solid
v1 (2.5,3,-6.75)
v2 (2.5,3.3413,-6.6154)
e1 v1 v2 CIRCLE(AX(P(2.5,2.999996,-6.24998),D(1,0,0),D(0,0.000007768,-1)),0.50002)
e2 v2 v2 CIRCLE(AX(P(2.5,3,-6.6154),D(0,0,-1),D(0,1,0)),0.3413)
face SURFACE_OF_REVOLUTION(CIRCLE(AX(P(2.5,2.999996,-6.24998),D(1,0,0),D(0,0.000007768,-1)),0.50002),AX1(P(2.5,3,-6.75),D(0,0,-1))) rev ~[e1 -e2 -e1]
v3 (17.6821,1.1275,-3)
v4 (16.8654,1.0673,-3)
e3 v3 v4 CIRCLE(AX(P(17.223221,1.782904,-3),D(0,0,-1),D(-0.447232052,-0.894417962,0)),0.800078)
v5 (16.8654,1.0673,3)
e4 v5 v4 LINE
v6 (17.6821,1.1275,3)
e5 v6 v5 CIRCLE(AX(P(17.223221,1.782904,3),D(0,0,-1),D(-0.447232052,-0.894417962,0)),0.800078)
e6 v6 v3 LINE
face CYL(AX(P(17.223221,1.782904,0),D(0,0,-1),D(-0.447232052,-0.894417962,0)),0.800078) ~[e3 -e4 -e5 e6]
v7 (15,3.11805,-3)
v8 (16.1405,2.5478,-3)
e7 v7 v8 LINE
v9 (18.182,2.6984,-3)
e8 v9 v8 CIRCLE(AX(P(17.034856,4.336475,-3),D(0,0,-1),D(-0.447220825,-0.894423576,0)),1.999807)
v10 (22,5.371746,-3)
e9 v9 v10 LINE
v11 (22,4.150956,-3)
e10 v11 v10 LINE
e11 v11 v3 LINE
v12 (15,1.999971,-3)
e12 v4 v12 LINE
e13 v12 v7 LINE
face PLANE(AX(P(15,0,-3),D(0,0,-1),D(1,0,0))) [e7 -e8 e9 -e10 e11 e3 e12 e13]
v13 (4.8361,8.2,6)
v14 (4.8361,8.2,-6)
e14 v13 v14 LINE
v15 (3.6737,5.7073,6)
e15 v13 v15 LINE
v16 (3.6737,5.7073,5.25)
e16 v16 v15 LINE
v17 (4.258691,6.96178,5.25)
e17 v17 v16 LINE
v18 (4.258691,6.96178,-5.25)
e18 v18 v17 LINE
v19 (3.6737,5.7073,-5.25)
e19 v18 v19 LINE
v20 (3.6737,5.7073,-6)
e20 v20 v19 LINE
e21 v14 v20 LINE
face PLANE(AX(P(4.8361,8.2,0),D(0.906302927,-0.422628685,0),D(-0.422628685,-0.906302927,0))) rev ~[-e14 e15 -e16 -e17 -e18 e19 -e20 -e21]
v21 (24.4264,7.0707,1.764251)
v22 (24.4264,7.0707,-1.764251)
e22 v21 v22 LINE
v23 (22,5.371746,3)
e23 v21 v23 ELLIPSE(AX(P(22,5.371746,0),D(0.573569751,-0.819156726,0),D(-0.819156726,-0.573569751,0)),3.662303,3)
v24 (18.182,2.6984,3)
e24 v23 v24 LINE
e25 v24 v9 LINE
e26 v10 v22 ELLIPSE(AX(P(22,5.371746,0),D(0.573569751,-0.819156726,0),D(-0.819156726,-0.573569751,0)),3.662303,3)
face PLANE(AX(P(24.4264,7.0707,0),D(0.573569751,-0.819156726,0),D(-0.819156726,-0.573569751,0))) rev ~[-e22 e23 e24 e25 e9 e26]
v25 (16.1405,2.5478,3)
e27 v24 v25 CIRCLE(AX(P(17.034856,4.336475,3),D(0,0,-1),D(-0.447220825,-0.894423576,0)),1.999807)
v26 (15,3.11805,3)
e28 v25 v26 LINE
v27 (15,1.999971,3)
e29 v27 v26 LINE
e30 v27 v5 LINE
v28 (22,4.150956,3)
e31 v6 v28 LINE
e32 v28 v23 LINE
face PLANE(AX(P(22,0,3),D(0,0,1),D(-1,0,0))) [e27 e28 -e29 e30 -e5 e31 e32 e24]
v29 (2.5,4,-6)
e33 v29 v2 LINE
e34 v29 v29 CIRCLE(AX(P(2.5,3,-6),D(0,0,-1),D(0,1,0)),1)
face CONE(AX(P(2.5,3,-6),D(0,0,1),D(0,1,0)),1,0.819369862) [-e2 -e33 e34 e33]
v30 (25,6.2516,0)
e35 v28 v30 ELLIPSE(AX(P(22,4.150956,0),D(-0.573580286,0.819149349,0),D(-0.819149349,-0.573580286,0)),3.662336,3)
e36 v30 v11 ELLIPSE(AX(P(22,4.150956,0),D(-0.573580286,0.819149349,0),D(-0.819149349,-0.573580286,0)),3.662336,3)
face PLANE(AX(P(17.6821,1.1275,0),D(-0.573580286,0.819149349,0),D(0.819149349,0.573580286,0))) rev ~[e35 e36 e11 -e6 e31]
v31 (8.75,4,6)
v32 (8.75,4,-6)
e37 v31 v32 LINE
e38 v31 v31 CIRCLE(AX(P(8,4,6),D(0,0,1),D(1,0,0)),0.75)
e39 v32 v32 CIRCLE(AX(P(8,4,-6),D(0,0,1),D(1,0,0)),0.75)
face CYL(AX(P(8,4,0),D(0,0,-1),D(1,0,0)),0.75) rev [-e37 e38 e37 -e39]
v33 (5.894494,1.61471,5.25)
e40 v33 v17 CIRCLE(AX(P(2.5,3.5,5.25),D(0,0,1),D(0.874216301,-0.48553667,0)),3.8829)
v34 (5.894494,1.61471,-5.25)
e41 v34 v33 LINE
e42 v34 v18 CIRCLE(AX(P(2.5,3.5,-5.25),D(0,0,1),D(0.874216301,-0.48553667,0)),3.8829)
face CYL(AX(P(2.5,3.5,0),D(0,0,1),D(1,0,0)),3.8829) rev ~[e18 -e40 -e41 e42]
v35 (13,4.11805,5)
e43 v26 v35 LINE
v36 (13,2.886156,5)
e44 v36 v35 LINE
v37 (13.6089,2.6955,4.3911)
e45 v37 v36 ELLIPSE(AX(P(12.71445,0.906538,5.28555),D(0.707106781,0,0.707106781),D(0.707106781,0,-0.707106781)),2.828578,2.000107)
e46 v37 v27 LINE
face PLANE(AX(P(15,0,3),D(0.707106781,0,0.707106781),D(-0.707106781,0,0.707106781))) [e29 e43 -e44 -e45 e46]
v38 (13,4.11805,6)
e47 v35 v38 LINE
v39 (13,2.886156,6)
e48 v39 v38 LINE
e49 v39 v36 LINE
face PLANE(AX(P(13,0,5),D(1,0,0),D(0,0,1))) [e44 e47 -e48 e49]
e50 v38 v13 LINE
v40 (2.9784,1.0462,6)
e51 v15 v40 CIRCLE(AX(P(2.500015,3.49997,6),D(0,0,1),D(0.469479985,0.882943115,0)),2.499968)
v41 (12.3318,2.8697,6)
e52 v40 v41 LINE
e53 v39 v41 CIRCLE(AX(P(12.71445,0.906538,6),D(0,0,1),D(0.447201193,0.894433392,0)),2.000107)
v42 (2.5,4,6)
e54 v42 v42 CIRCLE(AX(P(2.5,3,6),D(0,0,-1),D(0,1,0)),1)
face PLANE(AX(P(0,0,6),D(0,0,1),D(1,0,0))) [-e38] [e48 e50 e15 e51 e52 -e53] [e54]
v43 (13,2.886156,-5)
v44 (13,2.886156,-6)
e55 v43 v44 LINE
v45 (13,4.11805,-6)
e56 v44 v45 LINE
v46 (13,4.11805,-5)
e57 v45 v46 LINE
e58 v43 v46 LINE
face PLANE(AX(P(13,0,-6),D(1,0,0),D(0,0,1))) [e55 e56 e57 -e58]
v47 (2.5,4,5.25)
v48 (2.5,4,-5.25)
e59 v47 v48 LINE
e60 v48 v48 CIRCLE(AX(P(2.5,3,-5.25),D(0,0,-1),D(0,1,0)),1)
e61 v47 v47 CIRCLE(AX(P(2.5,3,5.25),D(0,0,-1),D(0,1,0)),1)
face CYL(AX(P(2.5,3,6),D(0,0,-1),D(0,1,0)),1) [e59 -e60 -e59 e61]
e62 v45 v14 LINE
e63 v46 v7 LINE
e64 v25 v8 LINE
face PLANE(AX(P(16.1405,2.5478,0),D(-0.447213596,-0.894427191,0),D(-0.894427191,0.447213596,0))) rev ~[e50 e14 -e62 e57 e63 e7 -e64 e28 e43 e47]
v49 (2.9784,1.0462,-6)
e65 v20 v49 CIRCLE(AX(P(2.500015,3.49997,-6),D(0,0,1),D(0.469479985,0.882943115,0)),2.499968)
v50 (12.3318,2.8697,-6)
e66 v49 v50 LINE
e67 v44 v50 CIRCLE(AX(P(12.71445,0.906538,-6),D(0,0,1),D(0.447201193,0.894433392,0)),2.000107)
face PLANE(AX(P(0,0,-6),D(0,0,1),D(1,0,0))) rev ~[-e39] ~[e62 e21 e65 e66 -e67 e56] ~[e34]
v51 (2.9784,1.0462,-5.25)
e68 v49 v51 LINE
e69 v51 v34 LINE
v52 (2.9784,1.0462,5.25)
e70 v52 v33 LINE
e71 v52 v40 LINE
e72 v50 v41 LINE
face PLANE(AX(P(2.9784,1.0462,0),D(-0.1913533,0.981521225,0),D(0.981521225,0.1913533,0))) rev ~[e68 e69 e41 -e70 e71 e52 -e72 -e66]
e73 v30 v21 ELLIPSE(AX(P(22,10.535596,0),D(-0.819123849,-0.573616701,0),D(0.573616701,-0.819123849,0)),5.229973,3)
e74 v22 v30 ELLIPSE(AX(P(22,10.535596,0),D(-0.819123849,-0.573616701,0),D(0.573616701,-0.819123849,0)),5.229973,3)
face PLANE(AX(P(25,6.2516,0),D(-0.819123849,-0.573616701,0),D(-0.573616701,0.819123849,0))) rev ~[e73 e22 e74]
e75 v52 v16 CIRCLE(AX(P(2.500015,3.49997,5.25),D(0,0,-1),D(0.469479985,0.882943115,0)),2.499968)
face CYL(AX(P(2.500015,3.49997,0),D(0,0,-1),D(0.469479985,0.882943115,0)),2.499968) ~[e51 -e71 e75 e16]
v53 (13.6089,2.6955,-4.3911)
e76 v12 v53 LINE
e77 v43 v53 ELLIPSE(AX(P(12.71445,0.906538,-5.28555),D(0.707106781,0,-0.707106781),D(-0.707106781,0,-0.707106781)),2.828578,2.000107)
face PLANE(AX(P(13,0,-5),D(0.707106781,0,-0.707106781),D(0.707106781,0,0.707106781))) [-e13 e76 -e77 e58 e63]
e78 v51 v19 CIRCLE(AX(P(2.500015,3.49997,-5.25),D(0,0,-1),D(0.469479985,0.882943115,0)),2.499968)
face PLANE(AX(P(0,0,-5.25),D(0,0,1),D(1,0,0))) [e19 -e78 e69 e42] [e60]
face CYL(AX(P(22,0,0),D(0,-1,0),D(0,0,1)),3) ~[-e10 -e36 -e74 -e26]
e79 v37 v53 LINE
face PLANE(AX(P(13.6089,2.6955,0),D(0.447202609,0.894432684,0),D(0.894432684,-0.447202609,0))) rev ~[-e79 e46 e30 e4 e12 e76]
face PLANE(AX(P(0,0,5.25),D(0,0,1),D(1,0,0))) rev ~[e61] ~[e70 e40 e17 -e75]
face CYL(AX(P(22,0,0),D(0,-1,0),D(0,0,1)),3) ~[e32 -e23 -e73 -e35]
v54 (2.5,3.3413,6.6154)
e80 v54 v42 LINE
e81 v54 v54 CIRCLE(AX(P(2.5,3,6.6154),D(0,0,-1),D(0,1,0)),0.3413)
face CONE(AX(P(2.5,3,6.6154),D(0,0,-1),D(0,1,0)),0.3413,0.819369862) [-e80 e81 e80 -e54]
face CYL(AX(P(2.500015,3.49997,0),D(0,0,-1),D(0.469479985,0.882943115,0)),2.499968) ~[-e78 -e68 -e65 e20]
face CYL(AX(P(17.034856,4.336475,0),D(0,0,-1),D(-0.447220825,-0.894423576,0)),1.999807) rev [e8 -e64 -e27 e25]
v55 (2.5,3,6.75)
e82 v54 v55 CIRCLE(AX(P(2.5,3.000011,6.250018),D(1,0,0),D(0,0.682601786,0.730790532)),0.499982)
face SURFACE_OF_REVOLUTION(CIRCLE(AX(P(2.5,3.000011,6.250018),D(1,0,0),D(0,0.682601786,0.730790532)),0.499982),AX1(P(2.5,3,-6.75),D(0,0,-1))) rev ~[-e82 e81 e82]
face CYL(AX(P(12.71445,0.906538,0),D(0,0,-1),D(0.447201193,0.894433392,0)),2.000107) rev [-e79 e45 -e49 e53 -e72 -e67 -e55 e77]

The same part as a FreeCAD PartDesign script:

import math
import FreeCAD as App
import Part
import Sketcher

V = App.Vector
Q = App.Units.Quantity

doc = App.newDocument("Part")
body = doc.addObject("PartDesign::Body", "Body")

# Sketch on XY plane
sketch1 = body.newObject("Sketcher::SketchObject", "Sketch")
sketch1.AttachmentSupport = (doc.getObject("XY_Plane"), [""])
sketch1.MapMode = "FlatFace"
sketch1.addGeometry([
    Part.LineSegment(V(4.8, 8.2, 0), V(3.7, 5.7, 0)),  # 0
    Part.ArcOfCircle(Part.Circle(V(2.5, 3.5, 0), V(0, 0, 1), 2.5), math.radians(62), math.radians(281)),  # 1
    Part.LineSegment(V(3, 1, 0), V(12.3, 2.9, 0)),  # 2
    Part.ArcOfCircle(Part.Circle(V(12.7, 0.9, 0), V(0, 0, 1), 2), math.radians(63), math.radians(101)),  # 3
    Part.LineSegment(V(13.6, 2.7, 0), V(16.9, 1.1, 0)),  # 4
    Part.ArcOfCircle(Part.Circle(V(17.2, 1.8, 0), V(0, 0, 1), 0.8), math.radians(-117), math.radians(-55)),  # 5
    Part.LineSegment(V(17.7, 1.1, 0), V(25, 6.3, 0)),  # 6
    Part.LineSegment(V(25, 6.3, 0), V(24.4, 7.1, 0)),  # 7
    Part.LineSegment(V(24.4, 7.1, 0), V(18.2, 2.7, 0)),  # 8
    Part.ArcOfCircle(Part.Circle(V(17, 4.3, 0), V(0, 0, 1), 2), math.radians(-117), math.radians(-55)),  # 9
    Part.LineSegment(V(16.1, 2.5, 0), V(4.8, 8.2, 0)),  # 10
    Part.Circle(V(8, 4, 0), V(0, 0, 1), 0.8),  # 11
], False)
sketch1.addConstraint([
    Sketcher.Constraint("Coincident", 0, 2, 1, 1),
    Sketcher.Constraint("Tangent", 1, 2, 2, 1),
    Sketcher.Constraint("Tangent", 2, 2, 3, 2),
    Sketcher.Constraint("Tangent", 3, 1, 4, 1),
    Sketcher.Constraint("Tangent", 4, 2, 5, 1),
    Sketcher.Constraint("Tangent", 5, 2, 6, 1),
    Sketcher.Constraint("Coincident", 6, 2, 7, 1),
    Sketcher.Constraint("Coincident", 7, 2, 8, 1),
    Sketcher.Constraint("Tangent", 8, 2, 9, 2),
    Sketcher.Constraint("Tangent", 9, 1, 10, 1),
    Sketcher.Constraint("Coincident", 10, 2, 0, 1),
    Sketcher.Constraint("Equal", 3, 9),
    Sketcher.Constraint("Perpendicular", 6, 7),
    Sketcher.Constraint("Perpendicular", 7, 8),
    Sketcher.Constraint("Parallel", 4, 10),
    Sketcher.Constraint("Radius", 3, Q("2 mm")),
    Sketcher.Constraint("Diameter", 11, Q("1.5 mm")),
    Sketcher.Constraint("Radius", 1, Q("2.5 mm")),
    Sketcher.Constraint("Radius", 5, Q("0.8 mm")),
    Sketcher.Constraint("Angle", 0, Q("-115.0007 deg")),
    Sketcher.Constraint("Angle", 6, Q("35.0003 deg")),
    Sketcher.Constraint("Distance", 7, Q("1 mm")),
    Sketcher.Constraint("DistanceX", -1, 1, 11, 3, Q("8 mm")),
    Sketcher.Constraint("DistanceY", -1, 1, 11, 3, Q("4 mm")),
    Sketcher.Constraint("DistanceX", -1, 1, 6, 2, Q("25 mm")),
    Sketcher.Constraint("DistanceX", -1, 1, 1, 3, Q("2.5 mm")),
    Sketcher.Constraint("DistanceY", -1, 1, 1, 3, Q("3.5 mm")),
    Sketcher.Constraint("DistanceY", -1, 1, 10, 2, Q("8.2 mm")),
    Sketcher.Constraint("DistanceX", 5, 2, 8, 2, Q("0.5 mm")),
    Sketcher.Constraint("DistanceY", 3, 3, 9, 3, Q("3.43 mm")),
    Sketcher.Constraint("Distance", 8, Q("7.623 mm")),
    Sketcher.Constraint("DistanceX", -1, 1, 3, 1, Q("13.609 mm")),
    Sketcher.Constraint("DistanceX", -1, 1, 10, 2, Q("4.836 mm")),
])
pad1 = body.newObject("PartDesign::Pad", "Pad")
pad1.Profile = sketch1
pad1.Length = 12
pad1.Midplane = True

# Sketch on XY plane
sketch2 = body.newObject("Sketcher::SketchObject", "Sketch001")
sketch2.AttachmentSupport = (doc.getObject("XY_Plane"), [""])
sketch2.MapMode = "FlatFace"
sketch2.addGeometry(Part.Circle(V(2.5, 3.5, 0), V(0, 0, 1), 3.9), False)
sketch2.addConstraint([
    Sketcher.Constraint("Diameter", 0, Q("7.7658 mm")),
    Sketcher.Constraint("DistanceX", -1, 1, 0, 3, Q("2.5 mm")),
    Sketcher.Constraint("DistanceY", -1, 1, 0, 3, Q("3.5 mm")),
])
pocket1 = body.newObject("PartDesign::Pocket", "Pocket")
pocket1.Profile = sketch2
pocket1.Length = 10.5
pocket1.Midplane = True

# Sketch on XZ plane
sketch3 = body.newObject("Sketcher::SketchObject", "Sketch002")
sketch3.AttachmentSupport = (doc.getObject("XZ_Plane"), [""])
sketch3.MapMode = "FlatFace"
sketch3.addGeometry([
    Part.LineSegment(V(13, -6, 0), V(13, -5, 0)),  # 0
    Part.LineSegment(V(13, -5, 0), V(15, -3, 0)),  # 1
    Part.LineSegment(V(15, -3, 0), V(22, -3, 0)),  # 2
    Part.ArcOfCircle(Part.Circle(V(22, 0, 0), V(0, 0, 1), 3), math.radians(-90), math.radians(90)),  # 3
    Part.LineSegment(V(22, 3, 0), V(15, 3, 0)),  # 4
    Part.LineSegment(V(15, 3, 0), V(13, 5, 0)),  # 5
    Part.LineSegment(V(13, 5, 0), V(13, 6, 0)),  # 6
    Part.LineSegment(V(13, 6, 0), V(30, 6, 0)),  # 7
    Part.LineSegment(V(30, 6, 0), V(30, -6, 0)),  # 8
    Part.LineSegment(V(30, -6, 0), V(13, -6, 0)),  # 9
], False)
sketch3.addConstraint([
    Sketcher.Constraint("Coincident", 0, 2, 1, 1),
    Sketcher.Constraint("Coincident", 1, 2, 2, 1),
    Sketcher.Constraint("Tangent", 2, 2, 3, 1),
    Sketcher.Constraint("Tangent", 3, 2, 4, 1),
    Sketcher.Constraint("Coincident", 4, 2, 5, 1),
    Sketcher.Constraint("Coincident", 5, 2, 6, 1),
    Sketcher.Constraint("Coincident", 6, 2, 7, 1),
    Sketcher.Constraint("Coincident", 7, 2, 8, 1),
    Sketcher.Constraint("Coincident", 8, 2, 9, 1),
    Sketcher.Constraint("Coincident", 9, 2, 0, 1),
    Sketcher.Constraint("Vertical", 0),
    Sketcher.Constraint("Horizontal", 2),
    Sketcher.Constraint("Horizontal", 4),
    Sketcher.Constraint("Vertical", 6),
    Sketcher.Constraint("Horizontal", 7),
    Sketcher.Constraint("Vertical", 8),
    Sketcher.Constraint("Horizontal", 9),
    Sketcher.Constraint("Symmetric", 1, 2, 4, 2, -1),
    Sketcher.Constraint("Symmetric", 0, 2, 5, 2, -1),
    Sketcher.Constraint("Perpendicular", 1, 5),
    Sketcher.Constraint("Equal", 0, 6),
    Sketcher.Constraint("Radius", 3, Q("3 mm")),
    Sketcher.Constraint("DistanceX", 2, 1, 2, 2, Q("7 mm")),
    Sketcher.Constraint("DistanceX", 7, 1, 7, 2, Q("17 mm")),
    Sketcher.Constraint("DistanceY", 0, 1, 0, 2, Q("1 mm")),
    Sketcher.Constraint("DistanceY", 8, 2, 8, 1, Q("12 mm")),
    Sketcher.Constraint("DistanceX", -1, 1, 3, 3, Q("22 mm")),
])
pocket2 = body.newObject("PartDesign::Pocket", "Pocket001")
pocket2.Profile = sketch3
pocket2.Length = 15

# Sketch on YZ plane
sketch4 = body.newObject("Sketcher::SketchObject", "Sketch003")
sketch4.AttachmentSupport = (doc.getObject("YZ_Plane"), [""])
sketch4.MapMode = "FlatFace"
sketch4.AttachmentOffset = App.Placement(V(0, 0, 2.5), App.Rotation())
sketch4.addGeometry([
    Part.LineSegment(V(3, 6.75, 0), V(3, -6.75, 0)),  # 0
    Part.ArcOfCircle(Part.Circle(V(3, -6.25, 0), V(0, 0, 1), 0.5), math.radians(-90), math.radians(-47)),  # 1
    Part.LineSegment(V(3.34, -6.62, 0), V(4, -6, 0)),  # 2
    Part.LineSegment(V(4, -6, 0), V(4, 6, 0)),  # 3
    Part.LineSegment(V(4, 6, 0), V(3.34, 6.62, 0)),  # 4
    Part.ArcOfCircle(Part.Circle(V(3, 6.25, 0), V(0, 0, 1), 0.5), math.radians(47), math.radians(90)),  # 5
], False)
sketch4.addGeometry(Part.LineSegment(V(3, 6.75, 0), V(3, -6.75, 0)), True)  # axis
sketch4.addConstraint([
    Sketcher.Constraint("Coincident", 0, 2, 1, 1),
    Sketcher.Constraint("Tangent", 1, 2, 2, 1),
    Sketcher.Constraint("Coincident", 2, 2, 3, 1),
    Sketcher.Constraint("Coincident", 3, 2, 4, 1),
    Sketcher.Constraint("Tangent", 4, 2, 5, 1),
    Sketcher.Constraint("Coincident", 5, 2, 0, 1),
    Sketcher.Constraint("Vertical", 0),
    Sketcher.Constraint("Vertical", 3),
    Sketcher.Constraint("Vertical", 6),
    Sketcher.Constraint("Coincident", 6, 1, 5, 2),
    Sketcher.Constraint("Equal", 1, 5),
    Sketcher.Constraint("Symmetric", 1, 3, 5, 3, -1),
    Sketcher.Constraint("Vertical", 5, 3, 0, 2),
    Sketcher.Constraint("Vertical", 1, 2, 4, 2),
    Sketcher.Constraint("Equal", 0, 6),
    Sketcher.Constraint("Radius", 1, Q("0.5 mm")),
    Sketcher.Constraint("DistanceY", 3, 1, 3, 2, Q("12 mm")),
    Sketcher.Constraint("DistanceY", 0, 2, 0, 1, Q("13.5 mm")),
    Sketcher.Constraint("DistanceX", -1, 1, 1, 3, Q("3 mm")),
    Sketcher.Constraint("DistanceX", -1, 1, 2, 2, Q("4 mm")),
])
revolution = body.newObject("PartDesign::Revolution", "Revolution")
revolution.Profile = sketch4
revolution.ReferenceAxis = (sketch4, ["Axis0"])
revolution.Angle = 360

doc.recompute()
